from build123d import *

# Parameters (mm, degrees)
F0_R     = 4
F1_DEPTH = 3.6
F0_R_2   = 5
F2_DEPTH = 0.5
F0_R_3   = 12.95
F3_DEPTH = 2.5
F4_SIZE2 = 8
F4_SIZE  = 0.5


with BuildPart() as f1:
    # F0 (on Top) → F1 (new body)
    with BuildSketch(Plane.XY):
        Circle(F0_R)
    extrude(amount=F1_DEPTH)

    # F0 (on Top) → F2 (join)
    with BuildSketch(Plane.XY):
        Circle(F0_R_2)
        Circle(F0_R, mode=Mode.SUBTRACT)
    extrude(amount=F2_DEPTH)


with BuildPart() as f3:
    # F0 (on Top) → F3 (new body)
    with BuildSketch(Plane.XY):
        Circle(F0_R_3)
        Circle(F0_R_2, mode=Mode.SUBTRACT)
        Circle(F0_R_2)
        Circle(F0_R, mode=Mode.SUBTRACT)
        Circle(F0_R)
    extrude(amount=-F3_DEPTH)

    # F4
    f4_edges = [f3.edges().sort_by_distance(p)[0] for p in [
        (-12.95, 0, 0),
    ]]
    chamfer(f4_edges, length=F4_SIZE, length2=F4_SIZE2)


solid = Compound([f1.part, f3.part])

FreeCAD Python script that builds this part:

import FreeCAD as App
import Part
import Sketcher
from FreeCAD import Vector


def edges_at(feature, points):
    """Names of the edges that pass closest to the given points."""
    edges = feature.Shape.Edges
    near = lambda p: min(range(len(edges)), key=lambda i: edges[i].distToShape(Part.Vertex(*p))[0])
    return sorted({f"Edge{near(p) + 1}" for p in points})

doc = App.newDocument("Part")
params = doc.addObject("Spreadsheet::Sheet", "Params")
for row, (alias, value) in enumerate([
    ("sketch1_diameter", "8 mm"),
    ("pad1_length", "3.6 mm"),
    ("sketch2_diameter", "10 mm"),
    ("sketch2_diameter2", "8 mm"),
    ("pad2_length", "0.5 mm"),
    ("sketch3_diameter", "25.9 mm"),
    ("pad3_length", "2.5 mm"),
    ("chamfer_size", "0.5 mm"),
    ("chamfer_size2", "8 mm"),
], start=1):
    params.set(f"A{row}", alias)
    params.set(f"B{row}", "=" + value)
    params.setAlias(f"B{row}", alias)

body = doc.addObject("PartDesign::Body", "Body")

# Sketch on XY plane
sketch1 = body.newObject("Sketcher::SketchObject", "Sketch")
sketch1.AttachmentSupport = (doc.getObject("XY_Plane"), [""])
sketch1.MapMode = "FlatFace"
sketch1.addGeometry(Part.Circle(Vector(0, 0, 0), Vector(0, 0, 1), 4), False)
sketch1.addConstraint(Sketcher.Constraint("Coincident", 0, 3, -1, 1))
sketch1.addConstraint(Sketcher.Constraint("Diameter", 0, 8.0))
sketch1.setExpression("Constraints[1]", "Params.sketch1_diameter")
pad1 = body.newObject("PartDesign::Pad", "Pad")
pad1.Profile = sketch1
pad1.setExpression("Length", "Params.pad1_length")

# Sketch on XY plane
sketch2 = body.newObject("Sketcher::SketchObject", "Sketch001")
sketch2.AttachmentSupport = (doc.getObject("XY_Plane"), [""])
sketch2.MapMode = "FlatFace"
sketch2.addGeometry(Part.Circle(Vector(0, 0, 0), Vector(0, 0, 1), 5), False)
sketch2.addGeometry(Part.Circle(Vector(0, 0, 0), Vector(0, 0, 1), 4), False)
sketch2.addConstraint(Sketcher.Constraint("Coincident", 0, 3, -1, 1))
sketch2.addConstraint(Sketcher.Constraint("Coincident", 1, 3, -1, 1))
sketch2.addConstraint(Sketcher.Constraint("Diameter", 0, 10.0))
sketch2.addConstraint(Sketcher.Constraint("Diameter", 1, 8.0))
sketch2.setExpression("Constraints[2]", "Params.sketch2_diameter")
sketch2.setExpression("Constraints[3]", "Params.sketch2_diameter2")
pad2 = body.newObject("PartDesign::Pad", "Pad001")
pad2.Profile = sketch2
pad2.setExpression("Length", "Params.pad2_length")
body2 = doc.addObject("PartDesign::Body", "Body001")

# Sketch on XY plane
sketch3 = body2.newObject("Sketcher::SketchObject", "Sketch002")
sketch3.AttachmentSupport = (doc.getObject("XY_Plane001"), [""])
sketch3.MapMode = "FlatFace"
sketch3.addGeometry(Part.Circle(Vector(0, 0, 0), Vector(0, 0, 1), 13), False)
sketch3.addConstraint(Sketcher.Constraint("Coincident", 0, 3, -1, 1))
sketch3.addConstraint(Sketcher.Constraint("Diameter", 0, 25.9))
sketch3.setExpression("Constraints[1]", "Params.sketch3_diameter")
pad3 = body2.newObject("PartDesign::Pad", "Pad002")
pad3.Profile = sketch3
pad3.setExpression("Length", "Params.pad3_length")
pad3.Reversed = True
doc.recompute()

chamfer = body2.newObject("PartDesign::Chamfer", "Chamfer")
chamfer.Base = (pad3, edges_at(pad3, [(-12.95, 0, 0)]))
chamfer.ChamferType = "Two distances"
chamfer.setExpression("Size", "Params.chamfer_size")
chamfer.setExpression("Size2", "Params.chamfer_size2")

doc.recompute()
